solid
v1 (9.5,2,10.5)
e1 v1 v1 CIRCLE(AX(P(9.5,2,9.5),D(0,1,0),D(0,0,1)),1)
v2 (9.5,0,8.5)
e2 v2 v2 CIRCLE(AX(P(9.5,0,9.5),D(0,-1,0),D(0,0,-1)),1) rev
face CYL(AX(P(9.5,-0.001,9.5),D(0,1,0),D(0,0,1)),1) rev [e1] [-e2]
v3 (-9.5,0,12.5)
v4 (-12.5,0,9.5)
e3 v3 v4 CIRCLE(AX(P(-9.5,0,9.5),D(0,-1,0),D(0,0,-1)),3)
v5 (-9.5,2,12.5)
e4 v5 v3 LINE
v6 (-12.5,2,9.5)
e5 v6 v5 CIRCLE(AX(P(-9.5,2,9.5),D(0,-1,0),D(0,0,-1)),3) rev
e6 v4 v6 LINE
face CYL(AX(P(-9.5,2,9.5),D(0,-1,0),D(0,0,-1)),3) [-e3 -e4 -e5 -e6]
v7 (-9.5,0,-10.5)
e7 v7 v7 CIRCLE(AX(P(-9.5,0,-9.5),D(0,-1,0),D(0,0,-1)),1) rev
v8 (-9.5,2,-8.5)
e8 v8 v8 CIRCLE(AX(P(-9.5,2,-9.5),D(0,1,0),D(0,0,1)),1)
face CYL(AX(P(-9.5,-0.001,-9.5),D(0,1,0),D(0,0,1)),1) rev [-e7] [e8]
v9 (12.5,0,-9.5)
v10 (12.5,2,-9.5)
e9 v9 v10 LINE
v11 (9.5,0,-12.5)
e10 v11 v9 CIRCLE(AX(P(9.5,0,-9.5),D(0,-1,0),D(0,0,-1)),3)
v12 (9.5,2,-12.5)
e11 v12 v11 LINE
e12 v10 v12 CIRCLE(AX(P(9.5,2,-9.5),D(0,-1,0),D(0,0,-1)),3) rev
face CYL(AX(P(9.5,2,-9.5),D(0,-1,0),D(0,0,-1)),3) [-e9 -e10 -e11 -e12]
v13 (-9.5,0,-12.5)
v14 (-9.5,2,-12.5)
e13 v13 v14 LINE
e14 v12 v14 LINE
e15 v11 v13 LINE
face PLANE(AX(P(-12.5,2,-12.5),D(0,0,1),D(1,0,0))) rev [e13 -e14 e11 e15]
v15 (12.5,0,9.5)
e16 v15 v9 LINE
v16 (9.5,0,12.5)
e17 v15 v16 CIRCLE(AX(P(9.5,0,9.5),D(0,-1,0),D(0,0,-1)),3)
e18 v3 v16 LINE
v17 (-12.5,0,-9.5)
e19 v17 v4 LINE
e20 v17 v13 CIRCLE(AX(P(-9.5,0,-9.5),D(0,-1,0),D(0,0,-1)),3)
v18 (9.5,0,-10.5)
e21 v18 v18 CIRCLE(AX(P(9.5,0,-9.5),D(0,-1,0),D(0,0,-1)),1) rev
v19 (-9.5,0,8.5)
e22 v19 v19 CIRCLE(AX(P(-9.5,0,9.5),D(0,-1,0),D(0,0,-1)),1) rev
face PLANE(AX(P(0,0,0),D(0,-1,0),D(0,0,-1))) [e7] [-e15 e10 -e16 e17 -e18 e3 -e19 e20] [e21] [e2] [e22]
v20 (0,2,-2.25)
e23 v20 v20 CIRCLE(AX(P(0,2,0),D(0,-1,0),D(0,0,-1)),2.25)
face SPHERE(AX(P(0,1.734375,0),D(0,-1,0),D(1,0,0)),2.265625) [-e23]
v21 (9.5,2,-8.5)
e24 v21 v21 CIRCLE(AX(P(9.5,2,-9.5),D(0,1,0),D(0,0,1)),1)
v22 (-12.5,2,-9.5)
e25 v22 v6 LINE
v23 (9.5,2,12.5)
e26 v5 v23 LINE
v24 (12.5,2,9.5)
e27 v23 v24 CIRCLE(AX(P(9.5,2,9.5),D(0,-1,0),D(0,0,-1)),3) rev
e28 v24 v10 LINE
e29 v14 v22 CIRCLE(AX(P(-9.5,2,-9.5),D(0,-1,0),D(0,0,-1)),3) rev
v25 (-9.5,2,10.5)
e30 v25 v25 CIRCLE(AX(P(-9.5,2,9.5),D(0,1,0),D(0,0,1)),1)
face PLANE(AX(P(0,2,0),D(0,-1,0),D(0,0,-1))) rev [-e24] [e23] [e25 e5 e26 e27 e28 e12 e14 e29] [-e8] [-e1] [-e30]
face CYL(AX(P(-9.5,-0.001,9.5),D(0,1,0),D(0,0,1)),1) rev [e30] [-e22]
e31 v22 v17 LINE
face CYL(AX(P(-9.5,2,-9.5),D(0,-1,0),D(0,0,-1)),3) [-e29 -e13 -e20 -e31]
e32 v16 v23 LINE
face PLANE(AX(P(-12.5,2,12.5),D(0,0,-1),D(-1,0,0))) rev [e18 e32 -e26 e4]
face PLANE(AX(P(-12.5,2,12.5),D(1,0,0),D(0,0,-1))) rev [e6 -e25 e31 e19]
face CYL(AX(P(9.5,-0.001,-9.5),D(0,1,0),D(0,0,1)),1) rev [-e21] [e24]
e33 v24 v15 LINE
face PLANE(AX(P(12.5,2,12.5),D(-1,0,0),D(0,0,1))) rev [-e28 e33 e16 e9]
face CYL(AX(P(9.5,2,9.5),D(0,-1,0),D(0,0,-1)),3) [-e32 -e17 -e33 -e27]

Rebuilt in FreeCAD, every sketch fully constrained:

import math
import FreeCAD as App
import Part
import Sketcher


def edges_at(feature, points):
    """Names of the edges that pass closest to the given points."""
    edges = feature.Shape.Edges
    near = lambda p: min(range(len(edges)), key=lambda i: edges[i].distToShape(Part.Vertex(*p))[0])
    return sorted({f"Edge{near(p) + 1}" for p in points})


def add_polygon(sketch, points):
    """Adds a closed chain of lines whose ends are joined by coincident constraints."""
    first, n = sketch.GeometryCount, len(points)
    for a, b in zip(points, points[1:] + points[:1]):
        sketch.addGeometry(Part.LineSegment(App.Vector(*a, 0), App.Vector(*b, 0)), False)
    for i in range(n):
        sketch.addConstraint(Sketcher.Constraint("Coincident", first + i, 2, first + (i + 1) % n, 1))

doc = App.newDocument("Part")
params = doc.addObject("Spreadsheet::Sheet", "Params")
for row, (alias, value) in enumerate([
    ("sketch1_width", "25 mm"),
    ("pad1_length", "2 mm"),
    ("fillet_radius", "3 mm"),
    ("sketch2_diameter", "2 mm"),
    ("sketch3_diameter", "2 mm"),
    ("sketch4_diameter", "2 mm"),
    ("sketch5_diameter", "2 mm"),
    ("sketch6_height", "2 mm"),
    ("sketch6_width", "2.25 mm"),
    ("revolution_angle", "360 deg"),
], start=1):
    params.set(f"A{row}", alias)
    params.set(f"B{row}", "=" + value)
    params.setAlias(f"B{row}", alias)

body = doc.addObject("PartDesign::Body", "Body")

sketch1 = body.newObject("Sketcher::SketchObject", "Sketch")
sketch1.AttachmentSupport = (doc.getObject("XZ_Plane"), [""])
sketch1.MapMode = "FlatFace"
add_polygon(sketch1, [(-12.5, -12.5), (-12.5, 12.5), (12.5, 12.5), (12.5, -12.5)])
sketch1.addConstraint([
    Sketcher.Constraint("Vertical", 0),
    Sketcher.Constraint("Horizontal", 1),
    Sketcher.Constraint("Vertical", 2),
    Sketcher.Constraint("Horizontal", 3),
    Sketcher.Constraint("Symmetric", 0, 2, 2, 2, -1, 1),
    Sketcher.Constraint("Equal", 3, 0),
    Sketcher.Constraint("DistanceX", 1, 1, 1, 2, 25.0),
])
sketch1.setExpression("Constraints[10]", "Params.sketch1_width")
pad1 = body.newObject("PartDesign::Pad", "Pad")
pad1.Profile = sketch1
pad1.setExpression("Length", "Params.pad1_length")
pad1.Reversed = True
doc.recompute()

fillet = body.newObject("PartDesign::Fillet", "Fillet")
fillet.Base = (pad1, edges_at(pad1, [
    (12.5, 1, 12.5),
    (-12.5, 1, 12.5),
    (-12.5, 1, -12.5),
    (12.5, 1, -12.5),
]))
fillet.setExpression("Radius", "Params.fillet_radius")

sketch2 = body.newObject("Sketcher::SketchObject", "Sketch001")
sketch2.AttachmentSupport = (doc.getObject("XZ_Plane"), [""])
sketch2.MapMode = "FlatFace"
sketch2.AttachmentOffset = App.Placement(App.Vector(0, 0, -2), App.Rotation())
sketch2.addGeometry(Part.Circle(App.Vector(-9.5, -9.5, 0), App.Vector(0, 0, 1), 1), False)
sketch2.addConstraint([
    Sketcher.Constraint("Diameter", 0, 2.0),
    Sketcher.Constraint("DistanceX", 0, 3, -1, 1, 9.5),
    Sketcher.Constraint("DistanceY", 0, 3, -1, 1, 9.5),
])
sketch2.setExpression("Constraints[0]", "Params.sketch2_diameter")
pocket1 = body.newObject("PartDesign::Pocket", "Pocket")
pocket1.Profile = sketch2
pocket1.Type = "UpToFirst"
pocket1.Reversed = True

sketch3 = body.newObject("Sketcher::SketchObject", "Sketch002")
sketch3.AttachmentSupport = (doc.getObject("XZ_Plane"), [""])
sketch3.MapMode = "FlatFace"
sketch3.AttachmentOffset = App.Placement(App.Vector(0, 0, -2), App.Rotation())
sketch3.addGeometry(Part.Circle(App.Vector(9.5, -9.5, 0), App.Vector(0, 0, 1), 1), False)
sketch3.addConstraint([
    Sketcher.Constraint("Diameter", 0, 2.0),
    Sketcher.Constraint("DistanceX", -1, 1, 0, 3, 9.5),
    Sketcher.Constraint("DistanceY", 0, 3, -1, 1, 9.5),
])
sketch3.setExpression("Constraints[0]", "Params.sketch3_diameter")
pocket2 = body.newObject("PartDesign::Pocket", "Pocket001")
pocket2.Profile = sketch3
pocket2.Type = "UpToFirst"
pocket2.Reversed = True

sketch4 = body.newObject("Sketcher::SketchObject", "Sketch003")
sketch4.AttachmentSupport = (doc.getObject("XZ_Plane"), [""])
sketch4.MapMode = "FlatFace"
sketch4.AttachmentOffset = App.Placement(App.Vector(0, 0, -2), App.Rotation())
sketch4.addGeometry(Part.Circle(App.Vector(9.5, 9.5, 0), App.Vector(0, 0, 1), 1), False)
sketch4.addConstraint([
    Sketcher.Constraint("Diameter", 0, 2.0),
    Sketcher.Constraint("DistanceX", -1, 1, 0, 3, 9.5),
    Sketcher.Constraint("DistanceY", -1, 1, 0, 3, 9.5),
])
sketch4.setExpression("Constraints[0]", "Params.sketch4_diameter")
pocket3 = body.newObject("PartDesign::Pocket", "Pocket002")
pocket3.Profile = sketch4
pocket3.Type = "UpToFirst"
pocket3.Reversed = True

sketch5 = body.newObject("Sketcher::SketchObject", "Sketch004")
sketch5.AttachmentSupport = (doc.getObject("XZ_Plane"), [""])
sketch5.MapMode = "FlatFace"
sketch5.AttachmentOffset = App.Placement(App.Vector(0, 0, -2), App.Rotation())
sketch5.addGeometry(Part.Circle(App.Vector(-9.5, 9.5, 0), App.Vector(0, 0, 1), 1), False)
sketch5.addConstraint([
    Sketcher.Constraint("Diameter", 0, 2.0),
    Sketcher.Constraint("DistanceX", 0, 3, -1, 1, 9.5),
    Sketcher.Constraint("DistanceY", -1, 1, 0, 3, 9.5),
])
sketch5.setExpression("Constraints[0]", "Params.sketch5_diameter")
pocket4 = body.newObject("PartDesign::Pocket", "Pocket003")
pocket4.Profile = sketch5
pocket4.Type = "UpToFirst"
pocket4.Reversed = True

sketch6 = body.newObject("Sketcher::SketchObject", "Sketch005")
sketch6.AttachmentSupport = (doc.getObject("XY_Plane"), [""])
sketch6.MapMode = "FlatFace"
sketch6.addGeometry([
    Part.LineSegment(App.Vector(0, 4, 0), App.Vector(0, 2, 0)),
    Part.LineSegment(App.Vector(0, 2, 0), App.Vector(2.25, 2, 0)),
    Part.ArcOfCircle(Part.Circle(App.Vector(0, 1.734375, 0), App.Vector(0, 0, 1), 2.265625), math.radians(6.732921), math.radians(90)),
], False)
sketch6.addConstraint([
    Sketcher.Constraint("Coincident", 0, 2, 1, 1),
    Sketcher.Constraint("Coincident", 1, 2, 2, 1),
    Sketcher.Constraint("Coincident", 2, 2, 0, 1),
    Sketcher.Constraint("Vertical", 0),
    Sketcher.Constraint("Horizontal", 1),
    Sketcher.Constraint("PointOnObject", 2, 3, -2),
    Sketcher.Constraint("PointOnObject", 0, 2, -2),
    Sketcher.Constraint("DistanceY", 0, 2, 0, 1, 2.0),
    Sketcher.Constraint("DistanceY", -1, 1, 0, 2, 2.0),
    Sketcher.Constraint("DistanceX", 1, 1, 1, 2, 2.25),
])
sketch6.setExpression("Constraints[7]", "Params.sketch6_height")
sketch6.setExpression("Constraints[9]", "Params.sketch6_width")
revolution = body.newObject("PartDesign::Revolution", "Revolution")
revolution.Profile = sketch6
revolution.ReferenceAxis = (sketch6, ["V_Axis"])
revolution.setExpression("Angle", "Params.revolution_angle")

doc.recompute()
